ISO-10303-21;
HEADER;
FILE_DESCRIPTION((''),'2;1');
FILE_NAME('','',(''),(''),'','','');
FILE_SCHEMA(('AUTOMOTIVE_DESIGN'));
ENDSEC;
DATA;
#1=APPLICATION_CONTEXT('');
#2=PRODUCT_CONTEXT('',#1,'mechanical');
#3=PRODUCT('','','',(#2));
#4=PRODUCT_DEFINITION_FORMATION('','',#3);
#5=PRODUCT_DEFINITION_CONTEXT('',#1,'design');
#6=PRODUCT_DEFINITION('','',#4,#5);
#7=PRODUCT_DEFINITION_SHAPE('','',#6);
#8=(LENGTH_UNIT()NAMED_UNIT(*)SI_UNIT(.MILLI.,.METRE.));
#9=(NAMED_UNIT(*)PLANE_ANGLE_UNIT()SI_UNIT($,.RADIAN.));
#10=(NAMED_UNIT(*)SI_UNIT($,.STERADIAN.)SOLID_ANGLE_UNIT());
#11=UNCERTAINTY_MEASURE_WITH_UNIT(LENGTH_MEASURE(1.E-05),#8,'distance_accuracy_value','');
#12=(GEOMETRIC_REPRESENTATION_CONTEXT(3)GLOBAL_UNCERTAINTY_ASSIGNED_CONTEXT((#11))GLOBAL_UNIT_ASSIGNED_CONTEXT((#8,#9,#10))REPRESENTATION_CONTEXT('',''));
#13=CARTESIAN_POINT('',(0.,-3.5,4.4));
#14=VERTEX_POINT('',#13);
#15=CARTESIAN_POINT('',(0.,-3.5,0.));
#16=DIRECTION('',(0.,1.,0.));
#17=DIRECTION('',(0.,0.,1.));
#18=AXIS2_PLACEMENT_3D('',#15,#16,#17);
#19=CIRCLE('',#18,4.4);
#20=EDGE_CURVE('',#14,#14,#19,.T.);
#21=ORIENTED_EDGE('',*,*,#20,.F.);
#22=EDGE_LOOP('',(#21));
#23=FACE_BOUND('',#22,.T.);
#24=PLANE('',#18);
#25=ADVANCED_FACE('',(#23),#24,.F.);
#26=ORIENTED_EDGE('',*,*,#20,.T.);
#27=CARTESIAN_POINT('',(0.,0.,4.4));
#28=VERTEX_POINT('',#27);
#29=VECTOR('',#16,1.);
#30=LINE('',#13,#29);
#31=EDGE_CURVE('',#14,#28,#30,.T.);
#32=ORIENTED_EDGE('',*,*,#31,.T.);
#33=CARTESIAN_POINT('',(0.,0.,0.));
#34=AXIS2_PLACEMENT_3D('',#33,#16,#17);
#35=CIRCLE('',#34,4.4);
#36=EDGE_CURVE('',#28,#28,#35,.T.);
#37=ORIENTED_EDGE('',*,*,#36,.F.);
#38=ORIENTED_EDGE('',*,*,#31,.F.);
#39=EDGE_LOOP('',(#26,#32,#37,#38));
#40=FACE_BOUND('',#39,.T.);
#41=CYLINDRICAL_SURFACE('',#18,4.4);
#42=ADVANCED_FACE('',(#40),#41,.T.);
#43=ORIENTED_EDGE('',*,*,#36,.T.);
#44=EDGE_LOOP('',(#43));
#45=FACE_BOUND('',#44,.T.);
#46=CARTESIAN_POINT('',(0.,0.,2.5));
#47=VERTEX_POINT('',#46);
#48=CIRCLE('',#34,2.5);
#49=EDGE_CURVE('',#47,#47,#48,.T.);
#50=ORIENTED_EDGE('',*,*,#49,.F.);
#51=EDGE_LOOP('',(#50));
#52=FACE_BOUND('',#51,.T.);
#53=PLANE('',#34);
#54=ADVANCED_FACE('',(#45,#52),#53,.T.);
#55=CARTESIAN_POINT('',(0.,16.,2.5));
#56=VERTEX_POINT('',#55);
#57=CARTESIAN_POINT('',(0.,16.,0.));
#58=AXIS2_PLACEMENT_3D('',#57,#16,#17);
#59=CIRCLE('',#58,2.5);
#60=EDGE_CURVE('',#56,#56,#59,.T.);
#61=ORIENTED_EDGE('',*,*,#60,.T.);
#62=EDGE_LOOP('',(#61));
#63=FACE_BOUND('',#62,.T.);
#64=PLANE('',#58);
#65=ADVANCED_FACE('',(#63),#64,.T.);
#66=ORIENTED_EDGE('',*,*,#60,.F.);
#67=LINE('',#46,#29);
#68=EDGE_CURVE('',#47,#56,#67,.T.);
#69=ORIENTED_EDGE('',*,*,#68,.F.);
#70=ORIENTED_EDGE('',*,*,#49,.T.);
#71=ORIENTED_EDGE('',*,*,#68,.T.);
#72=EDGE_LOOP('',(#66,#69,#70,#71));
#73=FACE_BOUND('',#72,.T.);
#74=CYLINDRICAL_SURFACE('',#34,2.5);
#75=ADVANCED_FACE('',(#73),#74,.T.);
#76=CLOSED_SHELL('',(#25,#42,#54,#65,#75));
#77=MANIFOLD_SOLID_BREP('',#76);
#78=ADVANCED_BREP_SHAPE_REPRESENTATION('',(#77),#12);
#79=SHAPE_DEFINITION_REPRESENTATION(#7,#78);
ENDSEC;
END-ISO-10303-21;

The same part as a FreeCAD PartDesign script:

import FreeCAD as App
import Part
import Sketcher
from FreeCAD import Vector
Q = App.Units.Quantity

doc = App.newDocument("Part")
body = doc.addObject("PartDesign::Body", "Body")

sketch1 = body.newObject("Sketcher::SketchObject", "Sketch")
sketch1.AttachmentSupport = (doc.getObject("YZ_Plane"), [""])
sketch1.MapMode = "FlatFace"
sketch1.addGeometry([
    Part.LineSegment(Vector(-3.5, 4.4, 0), Vector(-3.5, 0, 0)),
    Part.LineSegment(Vector(-3.5, 0, 0), Vector(16, 0, 0)),
    Part.LineSegment(Vector(16, 0, 0), Vector(16, 2.5, 0)),
    Part.LineSegment(Vector(16, 2.5, 0), Vector(0, 2.5, 0)),
    Part.LineSegment(Vector(0, 2.5, 0), Vector(0, 4.4, 0)),
    Part.LineSegment(Vector(0, 4.4, 0), Vector(-3.5, 4.4, 0)),
], False)
sketch1.addConstraint([
    Sketcher.Constraint("Coincident", 0, 2, 1, 1),
    Sketcher.Constraint("Coincident", 1, 2, 2, 1),
    Sketcher.Constraint("Coincident", 2, 2, 3, 1),
    Sketcher.Constraint("Coincident", 3, 2, 4, 1),
    Sketcher.Constraint("Coincident", 4, 2, 5, 1),
    Sketcher.Constraint("Coincident", 5, 2, 0, 1),
    Sketcher.Constraint("Vertical", 0),
    Sketcher.Constraint("Horizontal", 1),
    Sketcher.Constraint("Vertical", 2),
    Sketcher.Constraint("Horizontal", 3),
    Sketcher.Constraint("Vertical", 4),
    Sketcher.Constraint("Horizontal", 5),
    Sketcher.Constraint("PointOnObject", 0, 2, -1),
    Sketcher.Constraint("PointOnObject", 3, 2, -2),
    Sketcher.Constraint("DistanceX", 3, 2, 3, 1, Q("16 mm")),
    Sketcher.Constraint("DistanceX", 1, 1, 1, 2, Q("19.5 mm")),
    Sketcher.Constraint("DistanceY", 0, 2, 0, 1, Q("4.4 mm")),
    Sketcher.Constraint("DistanceY", 2, 1, 2, 2, Q("2.5 mm")),
])
revolution = body.newObject("PartDesign::Revolution", "Revolution")
revolution.Profile = sketch1
revolution.ReferenceAxis = (sketch1, ["H_Axis"])
revolution.Angle = 360

doc.recompute()
